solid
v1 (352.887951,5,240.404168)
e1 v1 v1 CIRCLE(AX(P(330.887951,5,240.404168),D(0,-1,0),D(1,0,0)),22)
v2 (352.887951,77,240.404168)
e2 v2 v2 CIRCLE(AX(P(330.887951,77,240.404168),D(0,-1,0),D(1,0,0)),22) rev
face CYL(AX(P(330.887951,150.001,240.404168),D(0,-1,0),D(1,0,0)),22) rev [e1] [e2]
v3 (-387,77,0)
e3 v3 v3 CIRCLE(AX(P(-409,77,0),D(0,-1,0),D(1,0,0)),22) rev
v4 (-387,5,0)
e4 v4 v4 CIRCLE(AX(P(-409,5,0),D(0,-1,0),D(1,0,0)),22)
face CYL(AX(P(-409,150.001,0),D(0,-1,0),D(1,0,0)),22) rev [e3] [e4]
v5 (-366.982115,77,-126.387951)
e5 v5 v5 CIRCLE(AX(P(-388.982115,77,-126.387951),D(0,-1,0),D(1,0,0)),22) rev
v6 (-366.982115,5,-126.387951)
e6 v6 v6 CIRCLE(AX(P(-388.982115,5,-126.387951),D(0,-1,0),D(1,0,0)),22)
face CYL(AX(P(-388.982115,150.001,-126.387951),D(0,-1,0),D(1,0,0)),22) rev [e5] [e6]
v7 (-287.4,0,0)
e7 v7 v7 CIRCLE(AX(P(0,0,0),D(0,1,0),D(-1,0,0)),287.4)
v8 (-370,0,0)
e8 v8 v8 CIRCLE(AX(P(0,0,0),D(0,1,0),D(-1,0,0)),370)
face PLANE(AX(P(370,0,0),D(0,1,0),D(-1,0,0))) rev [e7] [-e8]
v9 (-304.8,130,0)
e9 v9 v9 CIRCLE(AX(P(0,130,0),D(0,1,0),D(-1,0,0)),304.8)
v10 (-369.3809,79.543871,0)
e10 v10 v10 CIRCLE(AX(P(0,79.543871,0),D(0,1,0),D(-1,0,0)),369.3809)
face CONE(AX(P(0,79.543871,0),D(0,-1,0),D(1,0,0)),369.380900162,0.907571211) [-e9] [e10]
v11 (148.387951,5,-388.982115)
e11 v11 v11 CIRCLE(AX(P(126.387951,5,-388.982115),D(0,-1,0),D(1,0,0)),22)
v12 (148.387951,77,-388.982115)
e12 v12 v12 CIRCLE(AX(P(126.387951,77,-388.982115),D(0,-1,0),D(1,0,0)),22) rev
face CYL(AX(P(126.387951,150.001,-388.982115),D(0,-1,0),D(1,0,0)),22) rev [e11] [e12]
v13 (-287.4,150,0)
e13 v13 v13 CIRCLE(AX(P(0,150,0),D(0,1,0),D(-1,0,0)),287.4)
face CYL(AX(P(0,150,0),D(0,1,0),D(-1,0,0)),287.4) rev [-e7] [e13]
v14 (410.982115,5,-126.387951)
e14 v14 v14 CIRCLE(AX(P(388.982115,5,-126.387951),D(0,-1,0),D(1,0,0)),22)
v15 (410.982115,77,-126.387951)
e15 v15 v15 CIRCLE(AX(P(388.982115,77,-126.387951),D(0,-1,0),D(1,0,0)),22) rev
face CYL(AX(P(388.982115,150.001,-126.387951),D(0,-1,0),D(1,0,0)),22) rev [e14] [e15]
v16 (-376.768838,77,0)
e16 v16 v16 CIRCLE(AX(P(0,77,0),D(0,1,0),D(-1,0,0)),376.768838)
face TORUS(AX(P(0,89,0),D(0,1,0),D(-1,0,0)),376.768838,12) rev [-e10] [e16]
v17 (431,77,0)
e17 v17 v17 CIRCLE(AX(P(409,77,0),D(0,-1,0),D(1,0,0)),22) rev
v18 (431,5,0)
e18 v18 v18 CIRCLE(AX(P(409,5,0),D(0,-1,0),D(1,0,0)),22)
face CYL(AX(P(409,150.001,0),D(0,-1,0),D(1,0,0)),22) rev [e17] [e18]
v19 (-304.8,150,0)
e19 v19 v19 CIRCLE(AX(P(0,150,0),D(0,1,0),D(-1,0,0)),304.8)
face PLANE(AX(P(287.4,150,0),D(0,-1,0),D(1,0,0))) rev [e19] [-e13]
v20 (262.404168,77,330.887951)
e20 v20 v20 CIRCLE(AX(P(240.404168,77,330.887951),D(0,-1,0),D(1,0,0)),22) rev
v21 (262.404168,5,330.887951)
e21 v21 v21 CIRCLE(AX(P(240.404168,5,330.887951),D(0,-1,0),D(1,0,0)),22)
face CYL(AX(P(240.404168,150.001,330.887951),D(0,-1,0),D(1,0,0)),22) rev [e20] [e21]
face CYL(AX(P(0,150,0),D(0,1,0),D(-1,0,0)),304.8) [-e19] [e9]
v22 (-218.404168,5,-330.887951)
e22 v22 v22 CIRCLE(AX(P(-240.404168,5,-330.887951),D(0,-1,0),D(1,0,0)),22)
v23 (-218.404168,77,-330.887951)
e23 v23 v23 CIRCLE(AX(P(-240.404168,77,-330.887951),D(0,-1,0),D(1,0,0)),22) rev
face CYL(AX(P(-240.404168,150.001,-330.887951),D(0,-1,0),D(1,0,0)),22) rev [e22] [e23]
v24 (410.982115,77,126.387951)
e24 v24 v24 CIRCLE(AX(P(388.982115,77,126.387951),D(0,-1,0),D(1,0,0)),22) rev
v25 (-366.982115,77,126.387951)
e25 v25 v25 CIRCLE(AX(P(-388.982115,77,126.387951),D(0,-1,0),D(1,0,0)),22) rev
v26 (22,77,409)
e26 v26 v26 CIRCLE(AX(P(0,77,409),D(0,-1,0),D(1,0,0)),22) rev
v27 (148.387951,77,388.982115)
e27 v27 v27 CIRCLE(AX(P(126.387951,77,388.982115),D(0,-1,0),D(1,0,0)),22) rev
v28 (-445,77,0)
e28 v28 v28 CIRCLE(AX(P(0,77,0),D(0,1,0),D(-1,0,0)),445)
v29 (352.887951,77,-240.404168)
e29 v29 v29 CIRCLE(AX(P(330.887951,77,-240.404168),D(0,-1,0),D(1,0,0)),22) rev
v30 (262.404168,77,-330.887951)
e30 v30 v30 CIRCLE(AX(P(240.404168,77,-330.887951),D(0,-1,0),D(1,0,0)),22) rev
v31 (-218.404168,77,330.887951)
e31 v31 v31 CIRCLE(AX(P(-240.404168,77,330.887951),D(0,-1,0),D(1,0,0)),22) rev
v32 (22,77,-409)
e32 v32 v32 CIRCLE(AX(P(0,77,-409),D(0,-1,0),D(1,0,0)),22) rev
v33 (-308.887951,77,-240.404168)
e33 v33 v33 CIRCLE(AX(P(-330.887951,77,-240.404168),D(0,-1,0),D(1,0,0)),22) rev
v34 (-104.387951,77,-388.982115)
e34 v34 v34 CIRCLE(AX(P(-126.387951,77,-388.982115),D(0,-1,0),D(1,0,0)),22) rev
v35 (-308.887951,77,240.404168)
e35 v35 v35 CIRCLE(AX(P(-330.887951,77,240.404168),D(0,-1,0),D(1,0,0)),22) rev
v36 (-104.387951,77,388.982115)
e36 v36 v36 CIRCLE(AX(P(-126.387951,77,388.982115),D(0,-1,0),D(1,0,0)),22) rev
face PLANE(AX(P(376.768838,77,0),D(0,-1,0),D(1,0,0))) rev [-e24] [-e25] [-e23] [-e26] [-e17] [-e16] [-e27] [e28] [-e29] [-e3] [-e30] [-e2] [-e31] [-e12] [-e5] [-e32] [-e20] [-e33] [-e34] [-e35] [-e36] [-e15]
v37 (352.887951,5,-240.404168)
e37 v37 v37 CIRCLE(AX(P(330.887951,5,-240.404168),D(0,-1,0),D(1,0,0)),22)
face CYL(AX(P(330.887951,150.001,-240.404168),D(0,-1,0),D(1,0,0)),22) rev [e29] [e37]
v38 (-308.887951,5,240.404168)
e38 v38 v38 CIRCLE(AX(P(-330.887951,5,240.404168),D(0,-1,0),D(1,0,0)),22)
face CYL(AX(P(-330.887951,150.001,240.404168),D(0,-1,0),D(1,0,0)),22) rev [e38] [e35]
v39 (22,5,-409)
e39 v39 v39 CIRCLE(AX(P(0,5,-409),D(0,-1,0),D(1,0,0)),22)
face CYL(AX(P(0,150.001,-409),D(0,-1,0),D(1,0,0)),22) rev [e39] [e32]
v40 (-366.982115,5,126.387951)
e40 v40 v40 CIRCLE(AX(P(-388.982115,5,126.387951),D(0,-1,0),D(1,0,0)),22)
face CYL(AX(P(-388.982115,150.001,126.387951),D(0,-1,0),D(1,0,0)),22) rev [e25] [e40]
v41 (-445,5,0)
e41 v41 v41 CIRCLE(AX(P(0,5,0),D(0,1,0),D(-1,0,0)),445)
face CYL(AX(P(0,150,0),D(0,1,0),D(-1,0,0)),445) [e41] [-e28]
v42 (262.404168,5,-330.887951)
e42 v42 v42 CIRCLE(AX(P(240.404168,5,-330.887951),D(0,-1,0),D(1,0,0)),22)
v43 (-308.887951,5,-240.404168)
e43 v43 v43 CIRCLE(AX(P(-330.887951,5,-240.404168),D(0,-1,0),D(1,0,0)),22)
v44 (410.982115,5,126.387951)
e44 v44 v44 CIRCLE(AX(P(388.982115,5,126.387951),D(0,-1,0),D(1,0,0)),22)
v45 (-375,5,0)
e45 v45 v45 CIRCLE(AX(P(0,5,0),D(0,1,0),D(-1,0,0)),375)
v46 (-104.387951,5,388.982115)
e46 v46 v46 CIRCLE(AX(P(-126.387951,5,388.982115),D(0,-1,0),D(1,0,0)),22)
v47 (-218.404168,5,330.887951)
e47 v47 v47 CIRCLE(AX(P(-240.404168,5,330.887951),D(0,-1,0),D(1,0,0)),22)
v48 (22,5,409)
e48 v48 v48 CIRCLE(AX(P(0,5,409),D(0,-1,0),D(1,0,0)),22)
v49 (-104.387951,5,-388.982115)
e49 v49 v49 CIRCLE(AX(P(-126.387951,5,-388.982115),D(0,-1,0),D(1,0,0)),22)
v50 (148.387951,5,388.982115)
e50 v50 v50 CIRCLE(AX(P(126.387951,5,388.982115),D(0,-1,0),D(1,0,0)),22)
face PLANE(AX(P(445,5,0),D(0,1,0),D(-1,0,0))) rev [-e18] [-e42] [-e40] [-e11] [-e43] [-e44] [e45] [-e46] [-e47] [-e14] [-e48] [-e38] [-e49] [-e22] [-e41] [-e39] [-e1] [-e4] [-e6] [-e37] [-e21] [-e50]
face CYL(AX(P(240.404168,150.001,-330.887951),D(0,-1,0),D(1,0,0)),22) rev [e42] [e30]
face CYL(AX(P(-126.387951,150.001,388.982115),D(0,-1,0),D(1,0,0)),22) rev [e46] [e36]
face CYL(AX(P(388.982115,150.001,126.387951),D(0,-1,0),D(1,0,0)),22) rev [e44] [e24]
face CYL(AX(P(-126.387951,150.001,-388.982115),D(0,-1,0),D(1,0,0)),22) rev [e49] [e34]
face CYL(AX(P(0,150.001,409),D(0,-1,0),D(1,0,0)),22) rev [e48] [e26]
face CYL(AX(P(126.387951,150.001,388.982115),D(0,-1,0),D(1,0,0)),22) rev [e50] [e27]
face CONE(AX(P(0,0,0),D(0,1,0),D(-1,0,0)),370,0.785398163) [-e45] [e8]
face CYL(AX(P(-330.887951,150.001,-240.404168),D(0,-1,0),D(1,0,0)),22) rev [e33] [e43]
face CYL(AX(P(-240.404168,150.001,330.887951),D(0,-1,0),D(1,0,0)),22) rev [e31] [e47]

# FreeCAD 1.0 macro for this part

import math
import FreeCAD as App
import Part
import Sketcher
from FreeCAD import Vector
Q = App.Units.Quantity

doc = App.newDocument("Part")
body = doc.addObject("PartDesign::Body", "Body")

sketch1 = body.newObject("Sketcher::SketchObject", "Sketch")
sketch1.AttachmentSupport = (doc.getObject("XY_Plane"), [""])
sketch1.MapMode = "FlatFace"
sketch1.addGeometry([
    Part.LineSegment(Vector(305, 150, 0), Vector(287, 150, 0)),
    Part.LineSegment(Vector(287, 150, 0), Vector(287, 0, 0)),
    Part.LineSegment(Vector(287, 0, 0), Vector(370, 0, 0)),
    Part.LineSegment(Vector(370, 0, 0), Vector(375, 5, 0)),
    Part.LineSegment(Vector(375, 5, 0), Vector(445, 5, 0)),
    Part.LineSegment(Vector(445, 5, 0), Vector(445, 77, 0)),
    Part.LineSegment(Vector(445, 77, 0), Vector(377, 77, 0)),
    Part.ArcOfCircle(Part.Circle(Vector(377, 89, 0), Vector(0, 0, 1), 12), math.radians(-128), math.radians(-90)),
    Part.LineSegment(Vector(369, 80, 0), Vector(305, 130, 0)),
    Part.LineSegment(Vector(305, 130, 0), Vector(305, 150, 0)),
], False)
sketch1.addConstraint([
    Sketcher.Constraint("Coincident", 0, 2, 1, 1),
    Sketcher.Constraint("Coincident", 1, 2, 2, 1),
    Sketcher.Constraint("Coincident", 2, 2, 3, 1),
    Sketcher.Constraint("Coincident", 3, 2, 4, 1),
    Sketcher.Constraint("Coincident", 4, 2, 5, 1),
    Sketcher.Constraint("Coincident", 5, 2, 6, 1),
    Sketcher.Constraint("Tangent", 6, 2, 7, 2),
    Sketcher.Constraint("Tangent", 7, 1, 8, 1),
    Sketcher.Constraint("Coincident", 8, 2, 9, 1),
    Sketcher.Constraint("Coincident", 9, 2, 0, 1),
    Sketcher.Constraint("Horizontal", 0),
    Sketcher.Constraint("Vertical", 1),
    Sketcher.Constraint("Horizontal", 2),
    Sketcher.Constraint("Horizontal", 4),
    Sketcher.Constraint("Vertical", 5),
    Sketcher.Constraint("Horizontal", 6),
    Sketcher.Constraint("Vertical", 9),
    Sketcher.Constraint("PointOnObject", 1, 2, -1),
    Sketcher.Constraint("Radius", 7, Q("12 mm")),
    Sketcher.Constraint("DistanceX", 4, 1, 4, 2, Q("70 mm")),
    Sketcher.Constraint("DistanceY", 1, 2, 1, 1, Q("150 mm")),
    Sketcher.Constraint("DistanceY", 5, 1, 5, 2, Q("72 mm")),
    Sketcher.Constraint("DistanceY", 9, 1, 9, 2, Q("20 mm")),
    Sketcher.Constraint("Angle", 3, Q("45 deg")),
    Sketcher.Constraint("Angle", 8, Q("142 deg")),
    Sketcher.Constraint("DistanceX", 0, 2, 0, 1, Q("17.4 mm")),
    Sketcher.Constraint("DistanceX", 2, 1, 2, 2, Q("82.6 mm")),
    Sketcher.Constraint("DistanceY", -1, 1, 7, 3, Q("89 mm")),
    Sketcher.Constraint("DistanceX", -1, 1, 2, 2, Q("370 mm")),
])
revolution = body.newObject("PartDesign::Revolution", "Revolution")
revolution.Profile = sketch1
revolution.ReferenceAxis = (sketch1, ["V_Axis"])
revolution.Angle = 360

sketch2 = body.newObject("Sketcher::SketchObject", "Sketch001")
sketch2.AttachmentSupport = (doc.getObject("XZ_Plane"), [""])
sketch2.MapMode = "FlatFace"
sketch2.AttachmentOffset = App.Placement(Vector(0, 0, -5), App.Rotation())
sketch2.addGeometry(Part.Circle(Vector(0, 409, 0), Vector(0, 0, 1), 22), False)
sketch2.addConstraint([
    Sketcher.Constraint("PointOnObject", 0, 3, -2),
    Sketcher.Constraint("Diameter", 0, Q("44 mm")),
    Sketcher.Constraint("DistanceY", -1, 1, 0, 3, Q("409 mm")),
])
pocket1 = body.newObject("PartDesign::Pocket", "Pocket")
pocket1.Profile = sketch2
pocket1.Type = "UpToFirst"

sketch3 = body.newObject("Sketcher::SketchObject", "Sketch002")
sketch3.AttachmentSupport = (doc.getObject("XZ_Plane"), [""])
sketch3.MapMode = "FlatFace"
sketch3.AttachmentOffset = App.Placement(Vector(0, 0, -5), App.Rotation())
sketch3.addGeometry(Part.Circle(Vector(126, 389, 0), Vector(0, 0, 1), 22), False)
sketch3.addConstraint([
    Sketcher.Constraint("Diameter", 0, Q("44 mm")),
    Sketcher.Constraint("DistanceX", -1, 1, 0, 3, Q("126.387951 mm")),
    Sketcher.Constraint("DistanceY", -1, 1, 0, 3, Q("388.982115 mm")),
])
pocket2 = body.newObject("PartDesign::Pocket", "Pocket001")
pocket2.Profile = sketch3
pocket2.Type = "UpToFirst"

sketch4 = body.newObject("Sketcher::SketchObject", "Sketch003")
sketch4.AttachmentSupport = (doc.getObject("XZ_Plane"), [""])
sketch4.MapMode = "FlatFace"
sketch4.AttachmentOffset = App.Placement(Vector(0, 0, -5), App.Rotation())
sketch4.addGeometry(Part.Circle(Vector(240, 331, 0), Vector(0, 0, 1), 22), False)
sketch4.addConstraint([
    Sketcher.Constraint("Diameter", 0, Q("44 mm")),
    Sketcher.Constraint("DistanceX", -1, 1, 0, 3, Q("240.404168 mm")),
    Sketcher.Constraint("DistanceY", -1, 1, 0, 3, Q("330.887951 mm")),
])
pocket3 = body.newObject("PartDesign::Pocket", "Pocket002")
pocket3.Profile = sketch4
pocket3.Type = "UpToFirst"

sketch5 = body.newObject("Sketcher::SketchObject", "Sketch004")
sketch5.AttachmentSupport = (doc.getObject("XZ_Plane"), [""])
sketch5.MapMode = "FlatFace"
sketch5.AttachmentOffset = App.Placement(Vector(0, 0, -5), App.Rotation())
sketch5.addGeometry(Part.Circle(Vector(331, 240, 0), Vector(0, 0, 1), 22), False)
sketch5.addConstraint([
    Sketcher.Constraint("Diameter", 0, Q("44 mm")),
    Sketcher.Constraint("DistanceX", -1, 1, 0, 3, Q("330.887951 mm")),
    Sketcher.Constraint("DistanceY", -1, 1, 0, 3, Q("240.404168 mm")),
])
pocket4 = body.newObject("PartDesign::Pocket", "Pocket003")
pocket4.Profile = sketch5
pocket4.Type = "UpToFirst"

sketch6 = body.newObject("Sketcher::SketchObject", "Sketch005")
sketch6.AttachmentSupport = (doc.getObject("XZ_Plane"), [""])
sketch6.MapMode = "FlatFace"
sketch6.AttachmentOffset = App.Placement(Vector(0, 0, -5), App.Rotation())
sketch6.addGeometry(Part.Circle(Vector(389, 126, 0), Vector(0, 0, 1), 22), False)
sketch6.addConstraint([
    Sketcher.Constraint("Diameter", 0, Q("44 mm")),
    Sketcher.Constraint("DistanceY", -1, 1, 0, 3, Q("126.387951 mm")),
    Sketcher.Constraint("DistanceX", -1, 1, 0, 3, Q("388.982115 mm")),
])
pocket5 = body.newObject("PartDesign::Pocket", "Pocket004")
pocket5.Profile = sketch6
pocket5.Type = "UpToFirst"

sketch7 = body.newObject("Sketcher::SketchObject", "Sketch006")
sketch7.AttachmentSupport = (doc.getObject("XZ_Plane"), [""])
sketch7.MapMode = "FlatFace"
sketch7.AttachmentOffset = App.Placement(Vector(0, 0, -5), App.Rotation())
sketch7.addGeometry(Part.Circle(Vector(409, 0, 0), Vector(0, 0, 1), 22), False)
sketch7.addConstraint([
    Sketcher.Constraint("PointOnObject", 0, 3, -1),
    Sketcher.Constraint("Diameter", 0, Q("44 mm")),
    Sketcher.Constraint("DistanceX", -1, 1, 0, 3, Q("409 mm")),
])
pocket6 = body.newObject("PartDesign::Pocket", "Pocket005")
pocket6.Profile = sketch7
pocket6.Type = "UpToFirst"

sketch8 = body.newObject("Sketcher::SketchObject", "Sketch007")
sketch8.AttachmentSupport = (doc.getObject("XZ_Plane"), [""])
sketch8.MapMode = "FlatFace"
sketch8.AttachmentOffset = App.Placement(Vector(0, 0, -5), App.Rotation())
sketch8.addGeometry(Part.Circle(Vector(389, -126, 0), Vector(0, 0, 1), 22), False)
sketch8.addConstraint([
    Sketcher.Constraint("Diameter", 0, Q("44 mm")),
    Sketcher.Constraint("DistanceY", 0, 3, -1, 1, Q("126.387951 mm")),
    Sketcher.Constraint("DistanceX", -1, 1, 0, 3, Q("388.982115 mm")),
])
pocket7 = body.newObject("PartDesign::Pocket", "Pocket006")
pocket7.Profile = sketch8
pocket7.Type = "UpToFirst"

sketch9 = body.newObject("Sketcher::SketchObject", "Sketch008")
sketch9.AttachmentSupport = (doc.getObject("XZ_Plane"), [""])
sketch9.MapMode = "FlatFace"
sketch9.AttachmentOffset = App.Placement(Vector(0, 0, -5), App.Rotation())
sketch9.addGeometry(Part.Circle(Vector(331, -240, 0), Vector(0, 0, 1), 22), False)
sketch9.addConstraint([
    Sketcher.Constraint("Diameter", 0, Q("44 mm")),
    Sketcher.Constraint("DistanceX", -1, 1, 0, 3, Q("330.887951 mm")),
    Sketcher.Constraint("DistanceY", 0, 3, -1, 1, Q("240.404168 mm")),
])
pocket8 = body.newObject("PartDesign::Pocket", "Pocket007")
pocket8.Profile = sketch9
pocket8.Type = "UpToFirst"

sketch10 = body.newObject("Sketcher::SketchObject", "Sketch009")
sketch10.AttachmentSupport = (doc.getObject("XZ_Plane"), [""])
sketch10.MapMode = "FlatFace"
sketch10.AttachmentOffset = App.Placement(Vector(0, 0, -5), App.Rotation())
sketch10.addGeometry(Part.Circle(Vector(240, -331, 0), Vector(0, 0, 1), 22), False)
sketch10.addConstraint([
    Sketcher.Constraint("Diameter", 0, Q("44 mm")),
    Sketcher.Constraint("DistanceX", -1, 1, 0, 3, Q("240.404168 mm")),
    Sketcher.Constraint("DistanceY", 0, 3, -1, 1, Q("330.887951 mm")),
])
pocket9 = body.newObject("PartDesign::Pocket", "Pocket008")
pocket9.Profile = sketch10
pocket9.Type = "UpToFirst"

sketch11 = body.newObject("Sketcher::SketchObject", "Sketch010")
sketch11.AttachmentSupport = (doc.getObject("XZ_Plane"), [""])
sketch11.MapMode = "FlatFace"
sketch11.AttachmentOffset = App.Placement(Vector(0, 0, -5), App.Rotation())
sketch11.addGeometry(Part.Circle(Vector(126, -389, 0), Vector(0, 0, 1), 22), False)
sketch11.addConstraint([
    Sketcher.Constraint("Diameter", 0, Q("44 mm")),
    Sketcher.Constraint("DistanceX", -1, 1, 0, 3, Q("126.387951 mm")),
    Sketcher.Constraint("DistanceY", 0, 3, -1, 1, Q("388.982115 mm")),
])
pocket10 = body.newObject("PartDesign::Pocket", "Pocket009")
pocket10.Profile = sketch11
pocket10.Type = "UpToFirst"

sketch12 = body.newObject("Sketcher::SketchObject", "Sketch011")
sketch12.AttachmentSupport = (doc.getObject("XZ_Plane"), [""])
sketch12.MapMode = "FlatFace"
sketch12.AttachmentOffset = App.Placement(Vector(0, 0, -5), App.Rotation())
sketch12.addGeometry(Part.Circle(Vector(0, -409, 0), Vector(0, 0, 1), 22), False)
sketch12.addConstraint([
    Sketcher.Constraint("PointOnObject", 0, 3, -2),
    Sketcher.Constraint("Diameter", 0, Q("44 mm")),
    Sketcher.Constraint("DistanceY", 0, 3, -1, 1, Q("409 mm")),
])
pocket11 = body.newObject("PartDesign::Pocket", "Pocket010")
pocket11.Profile = sketch12
pocket11.Type = "UpToFirst"

sketch13 = body.newObject("Sketcher::SketchObject", "Sketch012")
sketch13.AttachmentSupport = (doc.getObject("XZ_Plane"), [""])
sketch13.MapMode = "FlatFace"
sketch13.AttachmentOffset = App.Placement(Vector(0, 0, -5), App.Rotation())
sketch13.addGeometry(Part.Circle(Vector(-126, -389, 0), Vector(0, 0, 1), 22), False)
sketch13.addConstraint([
    Sketcher.Constraint("Diameter", 0, Q("44 mm")),
    Sketcher.Constraint("DistanceX", 0, 3, -1, 1, Q("126.387951 mm")),
    Sketcher.Constraint("DistanceY", 0, 3, -1, 1, Q("388.982115 mm")),
])
pocket12 = body.newObject("PartDesign::Pocket", "Pocket011")
pocket12.Profile = sketch13
pocket12.Type = "UpToFirst"

sketch14 = body.newObject("Sketcher::SketchObject", "Sketch013")
sketch14.AttachmentSupport = (doc.getObject("XZ_Plane"), [""])
sketch14.MapMode = "FlatFace"
sketch14.AttachmentOffset = App.Placement(Vector(0, 0, -5), App.Rotation())
sketch14.addGeometry(Part.Circle(Vector(-240, -331, 0), Vector(0, 0, 1), 22), False)
sketch14.addConstraint([
    Sketcher.Constraint("Diameter", 0, Q("44 mm")),
    Sketcher.Constraint("DistanceX", 0, 3, -1, 1, Q("240.404168 mm")),
    Sketcher.Constraint("DistanceY", 0, 3, -1, 1, Q("330.887951 mm")),
])
pocket13 = body.newObject("PartDesign::Pocket", "Pocket012")
pocket13.Profile = sketch14
pocket13.Type = "UpToFirst"

sketch15 = body.newObject("Sketcher::SketchObject", "Sketch014")
sketch15.AttachmentSupport = (doc.getObject("XZ_Plane"), [""])
sketch15.MapMode = "FlatFace"
sketch15.AttachmentOffset = App.Placement(Vector(0, 0, -5), App.Rotation())
sketch15.addGeometry(Part.Circle(Vector(-331, -240, 0), Vector(0, 0, 1), 22), False)
sketch15.addConstraint([
    Sketcher.Constraint("Diameter", 0, Q("44 mm")),
    Sketcher.Constraint("DistanceX", 0, 3, -1, 1, Q("330.887951 mm")),
    Sketcher.Constraint("DistanceY", 0, 3, -1, 1, Q("240.404168 mm")),
])
pocket14 = body.newObject("PartDesign::Pocket", "Pocket013")
pocket14.Profile = sketch15
pocket14.Type = "UpToFirst"

sketch16 = body.newObject("Sketcher::SketchObject", "Sketch015")
sketch16.AttachmentSupport = (doc.getObject("XZ_Plane"), [""])
sketch16.MapMode = "FlatFace"
sketch16.AttachmentOffset = App.Placement(Vector(0, 0, -5), App.Rotation())
sketch16.addGeometry(Part.Circle(Vector(-389, -126, 0), Vector(0, 0, 1), 22), False)
sketch16.addConstraint([
    Sketcher.Constraint("Diameter", 0, Q("44 mm")),
    Sketcher.Constraint("DistanceY", 0, 3, -1, 1, Q("126.387951 mm")),
    Sketcher.Constraint("DistanceX", 0, 3, -1, 1, Q("388.982115 mm")),
])
pocket15 = body.newObject("PartDesign::Pocket", "Pocket014")
pocket15.Profile = sketch16
pocket15.Type = "UpToFirst"

sketch17 = body.newObject("Sketcher::SketchObject", "Sketch016")
sketch17.AttachmentSupport = (doc.getObject("XZ_Plane"), [""])
sketch17.MapMode = "FlatFace"
sketch17.AttachmentOffset = App.Placement(Vector(0, 0, -5), App.Rotation())
sketch17.addGeometry(Part.Circle(Vector(-409, 0, 0), Vector(0, 0, 1), 22), False)
sketch17.addConstraint([
    Sketcher.Constraint("PointOnObject", 0, 3, -1),
    Sketcher.Constraint("Diameter", 0, Q("44 mm")),
    Sketcher.Constraint("DistanceX", 0, 3, -1, 1, Q("409 mm")),
])
pocket16 = body.newObject("PartDesign::Pocket", "Pocket015")
pocket16.Profile = sketch17
pocket16.Type = "UpToFirst"

sketch18 = body.newObject("Sketcher::SketchObject", "Sketch017")
sketch18.AttachmentSupport = (doc.getObject("XZ_Plane"), [""])
sketch18.MapMode = "FlatFace"
sketch18.AttachmentOffset = App.Placement(Vector(0, 0, -5), App.Rotation())
sketch18.addGeometry(Part.Circle(Vector(-389, 126, 0), Vector(0, 0, 1), 22), False)
sketch18.addConstraint([
    Sketcher.Constraint("Diameter", 0, Q("44 mm")),
    Sketcher.Constraint("DistanceY", -1, 1, 0, 3, Q("126.387951 mm")),
    Sketcher.Constraint("DistanceX", 0, 3, -1, 1, Q("388.982115 mm")),
])
pocket17 = body.newObject("PartDesign::Pocket", "Pocket016")
pocket17.Profile = sketch18
pocket17.Type = "UpToFirst"

sketch19 = body.newObject("Sketcher::SketchObject", "Sketch018")
sketch19.AttachmentSupport = (doc.getObject("XZ_Plane"), [""])
sketch19.MapMode = "FlatFace"
sketch19.AttachmentOffset = App.Placement(Vector(0, 0, -5), App.Rotation())
sketch19.addGeometry(Part.Circle(Vector(-331, 240, 0), Vector(0, 0, 1), 22), False)
sketch19.addConstraint([
    Sketcher.Constraint("Diameter", 0, Q("44 mm")),
    Sketcher.Constraint("DistanceX", 0, 3, -1, 1, Q("330.887951 mm")),
    Sketcher.Constraint("DistanceY", -1, 1, 0, 3, Q("240.404168 mm")),
])
pocket18 = body.newObject("PartDesign::Pocket", "Pocket017")
pocket18.Profile = sketch19
pocket18.Type = "UpToFirst"

sketch20 = body.newObject("Sketcher::SketchObject", "Sketch019")
sketch20.AttachmentSupport = (doc.getObject("XZ_Plane"), [""])
sketch20.MapMode = "FlatFace"
sketch20.AttachmentOffset = App.Placement(Vector(0, 0, -5), App.Rotation())
sketch20.addGeometry(Part.Circle(Vector(-240, 331, 0), Vector(0, 0, 1), 22), False)
sketch20.addConstraint([
    Sketcher.Constraint("Diameter", 0, Q("44 mm")),
    Sketcher.Constraint("DistanceX", 0, 3, -1, 1, Q("240.404168 mm")),
    Sketcher.Constraint("DistanceY", -1, 1, 0, 3, Q("330.887951 mm")),
])
pocket19 = body.newObject("PartDesign::Pocket", "Pocket018")
pocket19.Profile = sketch20
pocket19.Type = "UpToFirst"

sketch21 = body.newObject("Sketcher::SketchObject", "Sketch020")
sketch21.AttachmentSupport = (doc.getObject("XZ_Plane"), [""])
sketch21.MapMode = "FlatFace"
sketch21.AttachmentOffset = App.Placement(Vector(0, 0, -5), App.Rotation())
sketch21.addGeometry(Part.Circle(Vector(-126, 389, 0), Vector(0, 0, 1), 22), False)
sketch21.addConstraint([
    Sketcher.Constraint("Diameter", 0, Q("44 mm")),
    Sketcher.Constraint("DistanceX", 0, 3, -1, 1, Q("126.387951 mm")),
    Sketcher.Constraint("DistanceY", -1, 1, 0, 3, Q("388.982115 mm")),
])
pocket20 = body.newObject("PartDesign::Pocket", "Pocket019")
pocket20.Profile = sketch21
pocket20.Type = "UpToFirst"

doc.recompute()
